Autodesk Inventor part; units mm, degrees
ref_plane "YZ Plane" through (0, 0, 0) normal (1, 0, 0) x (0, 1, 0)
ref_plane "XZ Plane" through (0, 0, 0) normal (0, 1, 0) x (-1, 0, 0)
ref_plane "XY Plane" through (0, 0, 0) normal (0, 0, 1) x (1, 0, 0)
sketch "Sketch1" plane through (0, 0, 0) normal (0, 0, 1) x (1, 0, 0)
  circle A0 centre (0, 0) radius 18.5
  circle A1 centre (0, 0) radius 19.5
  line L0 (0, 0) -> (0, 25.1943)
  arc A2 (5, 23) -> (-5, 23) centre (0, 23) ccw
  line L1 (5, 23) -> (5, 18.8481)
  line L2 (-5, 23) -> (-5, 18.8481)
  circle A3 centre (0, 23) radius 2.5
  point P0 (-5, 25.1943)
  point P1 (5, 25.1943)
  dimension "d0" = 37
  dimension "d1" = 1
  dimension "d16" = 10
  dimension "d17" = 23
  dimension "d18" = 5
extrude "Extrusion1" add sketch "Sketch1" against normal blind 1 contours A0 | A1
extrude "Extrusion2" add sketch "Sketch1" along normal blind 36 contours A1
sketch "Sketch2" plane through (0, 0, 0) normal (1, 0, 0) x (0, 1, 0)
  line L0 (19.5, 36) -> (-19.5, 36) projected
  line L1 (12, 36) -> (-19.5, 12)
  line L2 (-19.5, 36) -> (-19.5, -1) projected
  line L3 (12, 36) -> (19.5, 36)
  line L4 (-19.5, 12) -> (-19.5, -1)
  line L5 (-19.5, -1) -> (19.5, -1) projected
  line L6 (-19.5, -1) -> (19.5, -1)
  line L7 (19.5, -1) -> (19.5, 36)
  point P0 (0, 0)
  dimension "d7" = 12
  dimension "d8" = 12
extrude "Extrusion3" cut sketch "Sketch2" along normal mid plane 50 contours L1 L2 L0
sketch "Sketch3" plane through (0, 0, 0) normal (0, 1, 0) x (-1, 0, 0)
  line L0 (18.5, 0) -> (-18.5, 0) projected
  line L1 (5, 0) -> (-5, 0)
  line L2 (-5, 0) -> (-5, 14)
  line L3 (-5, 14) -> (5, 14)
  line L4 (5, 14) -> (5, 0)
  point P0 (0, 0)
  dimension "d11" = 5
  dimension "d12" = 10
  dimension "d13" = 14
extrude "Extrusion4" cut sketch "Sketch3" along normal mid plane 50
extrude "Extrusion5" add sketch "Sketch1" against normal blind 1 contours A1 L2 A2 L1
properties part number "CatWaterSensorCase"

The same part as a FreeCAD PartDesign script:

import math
import FreeCAD as App
import Part
import Sketcher
Q = App.Units.Quantity


def add_polygon(sketch, points):
    """Adds a closed chain of lines whose ends are joined by coincident constraints."""
    first, n = sketch.GeometryCount, len(points)
    for a, b in zip(points, points[1:] + points[:1]):
        sketch.addGeometry(Part.LineSegment(App.Vector(*a, 0), App.Vector(*b, 0)), False)
    for i in range(n):
        sketch.addConstraint(Sketcher.Constraint("Coincident", first + i, 2, first + (i + 1) % n, 1))

doc = App.newDocument("Part")
body = doc.addObject("PartDesign::Body", "Body")

sketch1 = body.newObject("Sketcher::SketchObject", "Sketch")
sketch1.AttachmentSupport = (doc.getObject("XY_Plane"), [""])
sketch1.MapMode = "FlatFace"
sketch1.addGeometry(Part.Circle(App.Vector(0, 0, 0), App.Vector(0, 0, 1), 20), False)
sketch1.addConstraint(Sketcher.Constraint("Coincident", 0, 3, -1, 1))
sketch1.addConstraint(Sketcher.Constraint("Diameter", 0, Q("39 mm")))
pad1 = body.newObject("PartDesign::Pad", "Pad")
pad1.Profile = sketch1
pad1.Length = 1
pad1.Reversed = True

sketch2 = body.newObject("Sketcher::SketchObject", "Sketch001")
sketch2.AttachmentSupport = (doc.getObject("XY_Plane"), [""])
sketch2.MapMode = "FlatFace"
sketch2.addGeometry(Part.Circle(App.Vector(0, 0, 0), App.Vector(0, 0, 1), 20), False)
sketch2.addGeometry(Part.Circle(App.Vector(0, 0, 0), App.Vector(0, 0, 1), 18), False)
sketch2.addConstraint(Sketcher.Constraint("Coincident", 0, 3, -1, 1))
sketch2.addConstraint(Sketcher.Constraint("Coincident", 1, 3, -1, 1))
sketch2.addConstraint(Sketcher.Constraint("Diameter", 1, Q("37 mm")))
sketch2.addConstraint(Sketcher.Constraint("Diameter", 0, Q("39 mm")))
pad2 = body.newObject("PartDesign::Pad", "Pad001")
pad2.Profile = sketch2
pad2.Length = 36

sketch3 = body.newObject("Sketcher::SketchObject", "Sketch002")
sketch3.AttachmentSupport = (doc.getObject("YZ_Plane"), [""])
sketch3.MapMode = "FlatFace"
add_polygon(sketch3, [(-20, 12), (12, 36), (-20, 36)])
sketch3.addConstraint(Sketcher.Constraint("Horizontal", 1))
sketch3.addConstraint(Sketcher.Constraint("Vertical", 2))
sketch3.addConstraint(Sketcher.Constraint("DistanceX", -1, 1, 0, 2, Q("12 mm")))
sketch3.addConstraint(Sketcher.Constraint("DistanceY", -1, 1, 2, 2, Q("12 mm")))
sketch3.addConstraint(Sketcher.Constraint("DistanceY", 2, 2, 2, 1, Q("24 mm")))
sketch3.addConstraint(Sketcher.Constraint("DistanceX", 1, 2, 1, 1, Q("31.5 mm")))
pocket1 = body.newObject("PartDesign::Pocket", "Pocket")
pocket1.Profile = sketch3
pocket1.Length = 50
pocket1.Midplane = True

sketch4 = body.newObject("Sketcher::SketchObject", "Sketch003")
sketch4.AttachmentSupport = (doc.getObject("XZ_Plane"), [""])
sketch4.MapMode = "FlatFace"
add_polygon(sketch4, [(5, 0), (-5, 0), (-5, 14), (5, 14)])
sketch4.addConstraint(Sketcher.Constraint("Horizontal", 0))
sketch4.addConstraint(Sketcher.Constraint("Vertical", 1))
sketch4.addConstraint(Sketcher.Constraint("Horizontal", 2))
sketch4.addConstraint(Sketcher.Constraint("Vertical", 3))
sketch4.addConstraint(Sketcher.Constraint("Symmetric", 0, 2, 3, 2, -1, 1))
sketch4.addConstraint(Sketcher.Constraint("DistanceX", 0, 2, 0, 1, Q("10 mm")))
sketch4.addConstraint(Sketcher.Constraint("DistanceY", 1, 1, 1, 2, Q("14 mm")))
pocket2 = body.newObject("PartDesign::Pocket", "Pocket001")
pocket2.Profile = sketch4
pocket2.Length = 50
pocket2.Midplane = True

sketch5 = body.newObject("Sketcher::SketchObject", "Sketch004")
sketch5.AttachmentSupport = (doc.getObject("XY_Plane"), [""])
sketch5.MapMode = "FlatFace"
sketch5.addGeometry(Part.ArcOfCircle(Part.Circle(App.Vector(0, 0, 0), App.Vector(0, 0, 1), 19.5), math.radians(90), math.radians(104.86)), False)
sketch5.addGeometry(Part.ArcOfCircle(Part.Circle(App.Vector(0, 0, 0), App.Vector(0, 0, 1), 19.5), math.radians(75.14), math.radians(90)), False)
sketch5.addGeometry(Part.LineSegment(App.Vector(5, 18.8, 0), App.Vector(5, 23, 0)), False)
sketch5.addGeometry(Part.ArcOfCircle(Part.Circle(App.Vector(0, 23, 0), App.Vector(0, 0, 1), 5), math.radians(0), math.radians(180)), False)
sketch5.addGeometry(Part.LineSegment(App.Vector(-5, 23, 0), App.Vector(-5, 18.8, 0)), False)
sketch5.addGeometry(Part.Circle(App.Vector(0, 23, 0), App.Vector(0, 0, 1), 2.5), False)
sketch5.addConstraint(Sketcher.Constraint("Tangent", 0, 1, 1, 2))
sketch5.addConstraint(Sketcher.Constraint("Coincident", 1, 1, 2, 1))
sketch5.addConstraint(Sketcher.Constraint("Tangent", 2, 2, 3, 1))
sketch5.addConstraint(Sketcher.Constraint("Tangent", 3, 2, 4, 1))
sketch5.addConstraint(Sketcher.Constraint("Coincident", 4, 2, 0, 2))
sketch5.addConstraint(Sketcher.Constraint("Vertical", 2))
sketch5.addConstraint(Sketcher.Constraint("Vertical", 4))
sketch5.addConstraint(Sketcher.Constraint("Coincident", 0, 3, -1, 1))
sketch5.addConstraint(Sketcher.Constraint("Coincident", 5, 3, 3, 3))
sketch5.addConstraint(Sketcher.Constraint("Equal", 0, 1))
sketch5.addConstraint(Sketcher.Constraint("PointOnObject", 3, 3, -2))
sketch5.addConstraint(Sketcher.Constraint("PointOnObject", 0, 1, -2))
sketch5.addConstraint(Sketcher.Constraint("Diameter", 5, Q("5 mm")))
sketch5.addConstraint(Sketcher.Constraint("Radius", 3, Q("5 mm")))
sketch5.addConstraint(Sketcher.Constraint("DistanceY", -1, 1, 3, 3, Q("23 mm")))
sketch5.addConstraint(Sketcher.Constraint("Radius", 0, Q("19.5 mm")))
pad3 = body.newObject("PartDesign::Pad", "Pad002")
pad3.Profile = sketch5
pad3.Length = 1
pad3.Reversed = True

doc.recompute()
